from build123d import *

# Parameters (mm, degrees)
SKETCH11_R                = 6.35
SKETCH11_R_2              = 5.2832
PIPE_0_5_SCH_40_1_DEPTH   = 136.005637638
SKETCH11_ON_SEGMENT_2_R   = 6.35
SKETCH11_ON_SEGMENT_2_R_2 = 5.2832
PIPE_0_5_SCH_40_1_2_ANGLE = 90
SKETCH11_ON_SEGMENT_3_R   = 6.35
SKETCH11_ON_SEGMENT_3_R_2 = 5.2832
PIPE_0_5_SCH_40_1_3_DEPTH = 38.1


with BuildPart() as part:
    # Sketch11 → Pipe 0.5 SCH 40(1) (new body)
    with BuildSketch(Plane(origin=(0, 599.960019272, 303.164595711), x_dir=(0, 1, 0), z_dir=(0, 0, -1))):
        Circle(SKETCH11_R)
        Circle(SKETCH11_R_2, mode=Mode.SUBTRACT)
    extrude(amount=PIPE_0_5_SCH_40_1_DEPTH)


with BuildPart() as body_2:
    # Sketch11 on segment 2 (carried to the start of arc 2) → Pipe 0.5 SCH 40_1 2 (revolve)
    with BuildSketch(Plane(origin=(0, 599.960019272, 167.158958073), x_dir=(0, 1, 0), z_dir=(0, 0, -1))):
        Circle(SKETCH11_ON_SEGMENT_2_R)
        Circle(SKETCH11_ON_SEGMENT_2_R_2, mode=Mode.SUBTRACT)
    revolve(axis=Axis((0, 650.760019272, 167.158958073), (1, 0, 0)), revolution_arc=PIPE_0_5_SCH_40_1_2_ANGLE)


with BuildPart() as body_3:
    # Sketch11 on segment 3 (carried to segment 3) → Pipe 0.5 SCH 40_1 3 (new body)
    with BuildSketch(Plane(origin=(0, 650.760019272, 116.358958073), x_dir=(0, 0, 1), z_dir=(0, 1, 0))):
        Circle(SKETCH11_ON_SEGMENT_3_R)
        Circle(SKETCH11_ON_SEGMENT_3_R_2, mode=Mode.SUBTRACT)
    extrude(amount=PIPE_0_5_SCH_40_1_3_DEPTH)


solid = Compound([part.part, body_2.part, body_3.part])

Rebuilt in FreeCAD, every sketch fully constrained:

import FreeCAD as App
import Part
import Sketcher
Q = App.Units.Quantity

doc = App.newDocument("Part")
body = doc.addObject("PartDesign::Body", "Body")

# Sketch on XY plane
sketch1 = body.newObject("Sketcher::SketchObject", "Sketch")
sketch1.AttachmentSupport = (doc.getObject("XY_Plane"), [""])
sketch1.MapMode = "FlatFace"
sketch1.AttachmentOffset = App.Placement(App.Vector(0, 0, 303.164596), App.Rotation())
sketch1.addGeometry([
    Part.Circle(App.Vector(0, 600, 0), App.Vector(0, 0, 1), 6),
    Part.Circle(App.Vector(0, 600, 0), App.Vector(0, 0, 1), 5),
], False)
sketch1.addConstraint([
    Sketcher.Constraint("Coincident", 1, 3, 0, 3),
    Sketcher.Constraint("PointOnObject", 0, 3, -2),
    Sketcher.Constraint("Diameter", 0, Q("0.5 in")),
    Sketcher.Constraint("Diameter", 1, Q("0.416 in")),
    Sketcher.Constraint("DistanceY", -1, 1, 0, 3, Q("599.960019 mm")),
])
pad1 = body.newObject("PartDesign::Pad", "Pad")
pad1.Profile = sketch1
pad1.Length = 136.005638
pad1.Reversed = True
body2 = doc.addObject("PartDesign::Body", "Body001")

# Sketch on XY plane
sketch2 = body2.newObject("Sketcher::SketchObject", "Sketch001")
sketch2.AttachmentSupport = (doc.getObject("XY_Plane001"), [""])
sketch2.MapMode = "FlatFace"
sketch2.AttachmentOffset = App.Placement(App.Vector(0, 0, 167.158958), App.Rotation())
sketch2.addGeometry([
    Part.Circle(App.Vector(0, 600, 0), App.Vector(0, 0, 1), 6),
    Part.Circle(App.Vector(0, 600, 0), App.Vector(0, 0, 1), 5),
], False)
sketch2.addGeometry(Part.LineSegment(App.Vector(0, 651, 0), App.Vector(10, 651, 0)), True)  # axis
sketch2.addConstraint([
    Sketcher.Constraint("Horizontal", 2),
    Sketcher.Constraint("Coincident", 1, 3, 0, 3),
    Sketcher.Constraint("PointOnObject", 0, 3, -2),
    Sketcher.Constraint("PointOnObject", 2, 1, -2),
    Sketcher.Constraint("Diameter", 0, Q("0.5 in")),
    Sketcher.Constraint("Diameter", 1, Q("0.416 in")),
    Sketcher.Constraint("DistanceY", 0, 3, 2, 1, Q("2 in")),
    Sketcher.Constraint("DistanceX", 2, 1, 2, 2, Q("10 mm")),
    Sketcher.Constraint("DistanceY", -1, 1, 0, 3, Q("599.960019 mm")),
])
revolution = body2.newObject("PartDesign::Revolution", "Revolution")
revolution.Profile = sketch2
revolution.ReferenceAxis = (sketch2, ["Axis0"])
revolution.Angle = 90
body3 = doc.addObject("PartDesign::Body", "Body002")

# Sketch on XZ plane
sketch3 = body3.newObject("Sketcher::SketchObject", "Sketch002")
sketch3.AttachmentSupport = (doc.getObject("XZ_Plane002"), [""])
sketch3.MapMode = "FlatFace"
sketch3.AttachmentOffset = App.Placement(App.Vector(0, 0, -650.760019), App.Rotation())
sketch3.addGeometry([
    Part.Circle(App.Vector(0, 116, 0), App.Vector(0, 0, 1), 6),
    Part.Circle(App.Vector(0, 116, 0), App.Vector(0, 0, 1), 5),
], False)
sketch3.addConstraint([
    Sketcher.Constraint("Coincident", 1, 3, 0, 3),
    Sketcher.Constraint("PointOnObject", 0, 3, -2),
    Sketcher.Constraint("Diameter", 0, Q("0.5 in")),
    Sketcher.Constraint("Diameter", 1, Q("0.416 in")),
    Sketcher.Constraint("DistanceY", -1, 1, 0, 3, Q("116.358958 mm")),
])
pad2 = body3.newObject("PartDesign::Pad", "Pad001")
pad2.Profile = sketch3
pad2.Length = Q("1.5 in")
pad2.Reversed = True

doc.recompute()
